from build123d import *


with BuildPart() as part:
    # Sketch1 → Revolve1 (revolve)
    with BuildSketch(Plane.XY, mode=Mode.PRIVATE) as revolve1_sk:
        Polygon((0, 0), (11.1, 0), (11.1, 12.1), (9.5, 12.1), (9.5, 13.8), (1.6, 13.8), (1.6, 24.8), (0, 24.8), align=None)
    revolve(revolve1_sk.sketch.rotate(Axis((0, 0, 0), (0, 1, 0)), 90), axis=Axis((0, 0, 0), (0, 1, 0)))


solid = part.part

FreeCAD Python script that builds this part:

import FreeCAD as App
import Part
import Sketcher
from FreeCAD import Vector
Q = App.Units.Quantity

doc = App.newDocument("Part")
body = doc.addObject("PartDesign::Body", "Body")

# Sketch on XY plane
sketch1 = body.newObject("Sketcher::SketchObject", "Sketch")
sketch1.AttachmentSupport = (doc.getObject("XY_Plane"), [""])
sketch1.MapMode = "FlatFace"
sketch1.addGeometry([
    Part.LineSegment(Vector(0, 0, 0), Vector(11.1, 0, 0)),  # 0
    Part.LineSegment(Vector(11.1, 0, 0), Vector(11.1, 12.1, 0)),  # 1
    Part.LineSegment(Vector(11.1, 12.1, 0), Vector(9.5, 12.1, 0)),  # 2
    Part.LineSegment(Vector(9.5, 12.1, 0), Vector(9.5, 13.8, 0)),  # 3
    Part.LineSegment(Vector(9.5, 13.8, 0), Vector(1.6, 13.8, 0)),  # 4
    Part.LineSegment(Vector(1.6, 13.8, 0), Vector(1.6, 24.8, 0)),  # 5
    Part.LineSegment(Vector(1.6, 24.8, 0), Vector(0, 24.8, 0)),  # 6
    Part.LineSegment(Vector(0, 24.8, 0), Vector(0, 0, 0)),  # 7
], False)
sketch1.addConstraint([
    Sketcher.Constraint("Coincident", 0, 2, 1, 1),
    Sketcher.Constraint("Coincident", 1, 2, 2, 1),
    Sketcher.Constraint("Coincident", 2, 2, 3, 1),
    Sketcher.Constraint("Coincident", 3, 2, 4, 1),
    Sketcher.Constraint("Coincident", 4, 2, 5, 1),
    Sketcher.Constraint("Coincident", 5, 2, 6, 1),
    Sketcher.Constraint("Coincident", 6, 2, 7, 1),
    Sketcher.Constraint("Coincident", 7, 2, 0, 1),
    Sketcher.Constraint("Horizontal", 0),
    Sketcher.Constraint("Vertical", 1),
    Sketcher.Constraint("Horizontal", 2),
    Sketcher.Constraint("Vertical", 3),
    Sketcher.Constraint("Horizontal", 4),
    Sketcher.Constraint("Vertical", 5),
    Sketcher.Constraint("Horizontal", 6),
    Sketcher.Constraint("Vertical", 7),
    Sketcher.Constraint("Coincident", 7, 2, -1, 1),
    Sketcher.Constraint("Equal", 2, 6),
    Sketcher.Constraint("DistanceY", 5, 1, 5, 2, Q("11 mm")),
    Sketcher.Constraint("DistanceX", 0, 1, 0, 2, Q("11.1 mm")),
    Sketcher.Constraint("DistanceX", 2, 2, 2, 1, Q("1.6 mm")),
    Sketcher.Constraint("DistanceY", 1, 1, 1, 2, Q("12.1 mm")),
    Sketcher.Constraint("DistanceY", 3, 1, 3, 2, Q("1.7 mm")),
])
revolution = body.newObject("PartDesign::Revolution", "Revolution")
revolution.Profile = sketch1
revolution.ReferenceAxis = (sketch1, ["V_Axis"])
revolution.Angle = 360

doc.recompute()
